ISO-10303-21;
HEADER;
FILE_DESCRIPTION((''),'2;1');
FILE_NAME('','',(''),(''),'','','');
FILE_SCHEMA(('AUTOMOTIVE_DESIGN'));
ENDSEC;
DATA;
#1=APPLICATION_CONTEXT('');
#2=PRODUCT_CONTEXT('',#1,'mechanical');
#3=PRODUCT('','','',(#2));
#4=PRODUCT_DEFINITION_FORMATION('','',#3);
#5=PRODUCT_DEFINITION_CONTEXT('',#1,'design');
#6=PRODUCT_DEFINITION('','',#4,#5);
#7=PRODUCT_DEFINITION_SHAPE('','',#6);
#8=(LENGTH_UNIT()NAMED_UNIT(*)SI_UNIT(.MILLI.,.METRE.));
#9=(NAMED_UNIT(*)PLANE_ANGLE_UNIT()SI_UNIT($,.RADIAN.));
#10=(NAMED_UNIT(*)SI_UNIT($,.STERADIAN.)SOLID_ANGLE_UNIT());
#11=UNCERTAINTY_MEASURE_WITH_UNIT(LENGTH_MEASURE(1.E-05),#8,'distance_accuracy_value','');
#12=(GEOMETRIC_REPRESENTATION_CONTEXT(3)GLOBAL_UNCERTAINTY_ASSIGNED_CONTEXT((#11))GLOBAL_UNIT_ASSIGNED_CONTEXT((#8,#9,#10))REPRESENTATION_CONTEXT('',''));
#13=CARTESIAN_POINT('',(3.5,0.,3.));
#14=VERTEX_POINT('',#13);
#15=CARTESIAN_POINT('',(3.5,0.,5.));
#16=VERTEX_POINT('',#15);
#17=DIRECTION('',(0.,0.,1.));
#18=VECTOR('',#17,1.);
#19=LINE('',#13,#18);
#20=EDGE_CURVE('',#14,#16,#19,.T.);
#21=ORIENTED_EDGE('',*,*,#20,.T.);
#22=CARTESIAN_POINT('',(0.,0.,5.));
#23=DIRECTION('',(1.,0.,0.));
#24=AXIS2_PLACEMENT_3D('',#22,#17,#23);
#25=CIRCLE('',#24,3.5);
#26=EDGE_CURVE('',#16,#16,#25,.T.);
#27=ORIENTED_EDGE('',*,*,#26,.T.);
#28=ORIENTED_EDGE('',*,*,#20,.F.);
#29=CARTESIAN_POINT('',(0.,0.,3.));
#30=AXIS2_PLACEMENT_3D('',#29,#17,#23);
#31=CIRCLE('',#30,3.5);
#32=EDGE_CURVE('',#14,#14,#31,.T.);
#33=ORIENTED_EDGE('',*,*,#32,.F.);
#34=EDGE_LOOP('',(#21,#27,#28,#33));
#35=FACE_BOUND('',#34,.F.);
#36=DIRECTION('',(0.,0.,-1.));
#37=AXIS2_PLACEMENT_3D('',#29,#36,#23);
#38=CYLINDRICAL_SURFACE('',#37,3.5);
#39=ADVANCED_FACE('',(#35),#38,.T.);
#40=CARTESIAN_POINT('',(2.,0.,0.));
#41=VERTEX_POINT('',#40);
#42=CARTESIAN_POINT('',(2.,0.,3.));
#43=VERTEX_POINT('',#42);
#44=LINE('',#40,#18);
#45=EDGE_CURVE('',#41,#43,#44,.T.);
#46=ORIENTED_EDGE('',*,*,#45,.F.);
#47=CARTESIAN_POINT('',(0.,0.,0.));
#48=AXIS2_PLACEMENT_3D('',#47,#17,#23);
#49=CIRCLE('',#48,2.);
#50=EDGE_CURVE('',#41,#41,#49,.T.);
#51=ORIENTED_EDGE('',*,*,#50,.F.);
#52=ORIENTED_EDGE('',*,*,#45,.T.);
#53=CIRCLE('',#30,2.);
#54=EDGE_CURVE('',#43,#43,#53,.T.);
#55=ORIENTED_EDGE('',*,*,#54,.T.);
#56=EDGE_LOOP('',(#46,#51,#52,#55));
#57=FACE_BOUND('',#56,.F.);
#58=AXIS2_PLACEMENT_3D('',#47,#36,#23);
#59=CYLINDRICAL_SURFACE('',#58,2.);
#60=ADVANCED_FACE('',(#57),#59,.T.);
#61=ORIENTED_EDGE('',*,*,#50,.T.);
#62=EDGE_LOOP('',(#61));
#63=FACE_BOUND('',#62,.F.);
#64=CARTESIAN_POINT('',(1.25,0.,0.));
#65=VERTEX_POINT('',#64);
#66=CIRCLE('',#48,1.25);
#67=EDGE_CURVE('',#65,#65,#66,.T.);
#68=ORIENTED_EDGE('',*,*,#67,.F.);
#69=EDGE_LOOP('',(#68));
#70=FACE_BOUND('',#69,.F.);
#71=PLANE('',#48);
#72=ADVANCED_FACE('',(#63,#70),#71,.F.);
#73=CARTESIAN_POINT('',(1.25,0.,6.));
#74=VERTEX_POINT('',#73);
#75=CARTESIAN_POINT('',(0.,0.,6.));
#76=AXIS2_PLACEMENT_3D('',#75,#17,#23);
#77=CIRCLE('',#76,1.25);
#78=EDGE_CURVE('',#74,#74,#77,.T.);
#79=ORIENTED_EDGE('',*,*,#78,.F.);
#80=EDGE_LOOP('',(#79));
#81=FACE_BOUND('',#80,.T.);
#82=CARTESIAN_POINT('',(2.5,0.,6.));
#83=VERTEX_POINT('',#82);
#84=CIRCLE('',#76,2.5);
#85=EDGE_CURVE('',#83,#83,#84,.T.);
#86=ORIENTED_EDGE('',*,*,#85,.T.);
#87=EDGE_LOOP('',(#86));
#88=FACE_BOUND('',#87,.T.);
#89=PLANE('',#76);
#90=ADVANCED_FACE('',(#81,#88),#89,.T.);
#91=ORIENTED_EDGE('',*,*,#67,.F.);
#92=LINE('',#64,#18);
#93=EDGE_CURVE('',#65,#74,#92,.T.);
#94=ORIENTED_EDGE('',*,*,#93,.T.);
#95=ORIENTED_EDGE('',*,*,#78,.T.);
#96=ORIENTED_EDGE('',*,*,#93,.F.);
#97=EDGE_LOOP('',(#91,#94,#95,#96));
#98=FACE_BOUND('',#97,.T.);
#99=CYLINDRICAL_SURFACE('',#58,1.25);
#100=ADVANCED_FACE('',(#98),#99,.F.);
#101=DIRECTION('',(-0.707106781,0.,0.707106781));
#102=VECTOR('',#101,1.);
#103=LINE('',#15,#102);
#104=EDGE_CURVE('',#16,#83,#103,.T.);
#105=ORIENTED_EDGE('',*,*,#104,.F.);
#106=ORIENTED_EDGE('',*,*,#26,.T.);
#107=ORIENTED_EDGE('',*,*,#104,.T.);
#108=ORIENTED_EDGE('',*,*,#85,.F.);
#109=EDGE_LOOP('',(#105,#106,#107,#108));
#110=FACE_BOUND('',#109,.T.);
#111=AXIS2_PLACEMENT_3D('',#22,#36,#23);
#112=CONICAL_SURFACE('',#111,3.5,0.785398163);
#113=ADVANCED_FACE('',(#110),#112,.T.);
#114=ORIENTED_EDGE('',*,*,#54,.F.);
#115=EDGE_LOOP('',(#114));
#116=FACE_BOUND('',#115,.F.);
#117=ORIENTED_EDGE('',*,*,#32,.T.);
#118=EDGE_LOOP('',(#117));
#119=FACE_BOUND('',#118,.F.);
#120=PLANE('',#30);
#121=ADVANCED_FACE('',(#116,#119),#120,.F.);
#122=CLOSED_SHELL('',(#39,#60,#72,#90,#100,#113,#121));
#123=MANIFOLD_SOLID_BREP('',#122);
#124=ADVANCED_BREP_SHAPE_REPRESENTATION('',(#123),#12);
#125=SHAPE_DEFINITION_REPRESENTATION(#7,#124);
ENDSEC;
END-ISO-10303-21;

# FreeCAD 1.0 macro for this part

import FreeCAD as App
import Part
import Sketcher
from FreeCAD import Vector


def edges_at(feature, points):
    """Names of the edges that pass closest to the given points."""
    edges = feature.Shape.Edges
    near = lambda p: min(range(len(edges)), key=lambda i: edges[i].distToShape(Part.Vertex(*p))[0])
    return sorted({f"Edge{near(p) + 1}" for p in points})

doc = App.newDocument("Part")
body = doc.addObject("PartDesign::Body", "Body")

sketch1 = body.newObject("Sketcher::SketchObject", "Sketch")
sketch1.AttachmentSupport = (doc.getObject("XY_Plane"), [""])
sketch1.MapMode = "FlatFace"
sketch1.addGeometry([
    Part.Circle(Vector(0, 0, 0), Vector(0, 0, 1), 2),
    Part.Circle(Vector(0, 0, 0), Vector(0, 0, 1), 1.2),
], False)
sketch1.addConstraint([
    Sketcher.Constraint("Coincident", 0, 3, -1, 1),
    Sketcher.Constraint("Coincident", 1, 3, -1, 1),
    Sketcher.Constraint("Diameter", 0, 4.0),
    Sketcher.Constraint("Diameter", 1, 2.5),
])
pad1 = body.newObject("PartDesign::Pad", "Pad")
pad1.Profile = sketch1
pad1.Length = 3

sketch2 = body.newObject("Sketcher::SketchObject", "Sketch001")
sketch2.AttachmentSupport = (doc.getObject("XY_Plane"), [""])
sketch2.MapMode = "FlatFace"
sketch2.AttachmentOffset = App.Placement(Vector(0, 0, 3), App.Rotation())
sketch2.addGeometry([
    Part.Circle(Vector(0, 0, 0), Vector(0, 0, 1), 3.5),
    Part.Circle(Vector(0, 0, 0), Vector(0, 0, 1), 1.2),
], False)
sketch2.addConstraint([
    Sketcher.Constraint("Coincident", 0, 3, -1, 1),
    Sketcher.Constraint("Coincident", 1, 3, -1, 1),
    Sketcher.Constraint("Diameter", 0, 7.0),
    Sketcher.Constraint("Diameter", 1, 2.5),
])
pad2 = body.newObject("PartDesign::Pad", "Pad001")
pad2.Profile = sketch2
pad2.Length = 3
doc.recompute()

chamfer = body.newObject("PartDesign::Chamfer", "Chamfer")
chamfer.Base = (pad2, edges_at(pad2, [(-3.5, 0, 6)]))
chamfer.Size = 1

doc.recompute()
